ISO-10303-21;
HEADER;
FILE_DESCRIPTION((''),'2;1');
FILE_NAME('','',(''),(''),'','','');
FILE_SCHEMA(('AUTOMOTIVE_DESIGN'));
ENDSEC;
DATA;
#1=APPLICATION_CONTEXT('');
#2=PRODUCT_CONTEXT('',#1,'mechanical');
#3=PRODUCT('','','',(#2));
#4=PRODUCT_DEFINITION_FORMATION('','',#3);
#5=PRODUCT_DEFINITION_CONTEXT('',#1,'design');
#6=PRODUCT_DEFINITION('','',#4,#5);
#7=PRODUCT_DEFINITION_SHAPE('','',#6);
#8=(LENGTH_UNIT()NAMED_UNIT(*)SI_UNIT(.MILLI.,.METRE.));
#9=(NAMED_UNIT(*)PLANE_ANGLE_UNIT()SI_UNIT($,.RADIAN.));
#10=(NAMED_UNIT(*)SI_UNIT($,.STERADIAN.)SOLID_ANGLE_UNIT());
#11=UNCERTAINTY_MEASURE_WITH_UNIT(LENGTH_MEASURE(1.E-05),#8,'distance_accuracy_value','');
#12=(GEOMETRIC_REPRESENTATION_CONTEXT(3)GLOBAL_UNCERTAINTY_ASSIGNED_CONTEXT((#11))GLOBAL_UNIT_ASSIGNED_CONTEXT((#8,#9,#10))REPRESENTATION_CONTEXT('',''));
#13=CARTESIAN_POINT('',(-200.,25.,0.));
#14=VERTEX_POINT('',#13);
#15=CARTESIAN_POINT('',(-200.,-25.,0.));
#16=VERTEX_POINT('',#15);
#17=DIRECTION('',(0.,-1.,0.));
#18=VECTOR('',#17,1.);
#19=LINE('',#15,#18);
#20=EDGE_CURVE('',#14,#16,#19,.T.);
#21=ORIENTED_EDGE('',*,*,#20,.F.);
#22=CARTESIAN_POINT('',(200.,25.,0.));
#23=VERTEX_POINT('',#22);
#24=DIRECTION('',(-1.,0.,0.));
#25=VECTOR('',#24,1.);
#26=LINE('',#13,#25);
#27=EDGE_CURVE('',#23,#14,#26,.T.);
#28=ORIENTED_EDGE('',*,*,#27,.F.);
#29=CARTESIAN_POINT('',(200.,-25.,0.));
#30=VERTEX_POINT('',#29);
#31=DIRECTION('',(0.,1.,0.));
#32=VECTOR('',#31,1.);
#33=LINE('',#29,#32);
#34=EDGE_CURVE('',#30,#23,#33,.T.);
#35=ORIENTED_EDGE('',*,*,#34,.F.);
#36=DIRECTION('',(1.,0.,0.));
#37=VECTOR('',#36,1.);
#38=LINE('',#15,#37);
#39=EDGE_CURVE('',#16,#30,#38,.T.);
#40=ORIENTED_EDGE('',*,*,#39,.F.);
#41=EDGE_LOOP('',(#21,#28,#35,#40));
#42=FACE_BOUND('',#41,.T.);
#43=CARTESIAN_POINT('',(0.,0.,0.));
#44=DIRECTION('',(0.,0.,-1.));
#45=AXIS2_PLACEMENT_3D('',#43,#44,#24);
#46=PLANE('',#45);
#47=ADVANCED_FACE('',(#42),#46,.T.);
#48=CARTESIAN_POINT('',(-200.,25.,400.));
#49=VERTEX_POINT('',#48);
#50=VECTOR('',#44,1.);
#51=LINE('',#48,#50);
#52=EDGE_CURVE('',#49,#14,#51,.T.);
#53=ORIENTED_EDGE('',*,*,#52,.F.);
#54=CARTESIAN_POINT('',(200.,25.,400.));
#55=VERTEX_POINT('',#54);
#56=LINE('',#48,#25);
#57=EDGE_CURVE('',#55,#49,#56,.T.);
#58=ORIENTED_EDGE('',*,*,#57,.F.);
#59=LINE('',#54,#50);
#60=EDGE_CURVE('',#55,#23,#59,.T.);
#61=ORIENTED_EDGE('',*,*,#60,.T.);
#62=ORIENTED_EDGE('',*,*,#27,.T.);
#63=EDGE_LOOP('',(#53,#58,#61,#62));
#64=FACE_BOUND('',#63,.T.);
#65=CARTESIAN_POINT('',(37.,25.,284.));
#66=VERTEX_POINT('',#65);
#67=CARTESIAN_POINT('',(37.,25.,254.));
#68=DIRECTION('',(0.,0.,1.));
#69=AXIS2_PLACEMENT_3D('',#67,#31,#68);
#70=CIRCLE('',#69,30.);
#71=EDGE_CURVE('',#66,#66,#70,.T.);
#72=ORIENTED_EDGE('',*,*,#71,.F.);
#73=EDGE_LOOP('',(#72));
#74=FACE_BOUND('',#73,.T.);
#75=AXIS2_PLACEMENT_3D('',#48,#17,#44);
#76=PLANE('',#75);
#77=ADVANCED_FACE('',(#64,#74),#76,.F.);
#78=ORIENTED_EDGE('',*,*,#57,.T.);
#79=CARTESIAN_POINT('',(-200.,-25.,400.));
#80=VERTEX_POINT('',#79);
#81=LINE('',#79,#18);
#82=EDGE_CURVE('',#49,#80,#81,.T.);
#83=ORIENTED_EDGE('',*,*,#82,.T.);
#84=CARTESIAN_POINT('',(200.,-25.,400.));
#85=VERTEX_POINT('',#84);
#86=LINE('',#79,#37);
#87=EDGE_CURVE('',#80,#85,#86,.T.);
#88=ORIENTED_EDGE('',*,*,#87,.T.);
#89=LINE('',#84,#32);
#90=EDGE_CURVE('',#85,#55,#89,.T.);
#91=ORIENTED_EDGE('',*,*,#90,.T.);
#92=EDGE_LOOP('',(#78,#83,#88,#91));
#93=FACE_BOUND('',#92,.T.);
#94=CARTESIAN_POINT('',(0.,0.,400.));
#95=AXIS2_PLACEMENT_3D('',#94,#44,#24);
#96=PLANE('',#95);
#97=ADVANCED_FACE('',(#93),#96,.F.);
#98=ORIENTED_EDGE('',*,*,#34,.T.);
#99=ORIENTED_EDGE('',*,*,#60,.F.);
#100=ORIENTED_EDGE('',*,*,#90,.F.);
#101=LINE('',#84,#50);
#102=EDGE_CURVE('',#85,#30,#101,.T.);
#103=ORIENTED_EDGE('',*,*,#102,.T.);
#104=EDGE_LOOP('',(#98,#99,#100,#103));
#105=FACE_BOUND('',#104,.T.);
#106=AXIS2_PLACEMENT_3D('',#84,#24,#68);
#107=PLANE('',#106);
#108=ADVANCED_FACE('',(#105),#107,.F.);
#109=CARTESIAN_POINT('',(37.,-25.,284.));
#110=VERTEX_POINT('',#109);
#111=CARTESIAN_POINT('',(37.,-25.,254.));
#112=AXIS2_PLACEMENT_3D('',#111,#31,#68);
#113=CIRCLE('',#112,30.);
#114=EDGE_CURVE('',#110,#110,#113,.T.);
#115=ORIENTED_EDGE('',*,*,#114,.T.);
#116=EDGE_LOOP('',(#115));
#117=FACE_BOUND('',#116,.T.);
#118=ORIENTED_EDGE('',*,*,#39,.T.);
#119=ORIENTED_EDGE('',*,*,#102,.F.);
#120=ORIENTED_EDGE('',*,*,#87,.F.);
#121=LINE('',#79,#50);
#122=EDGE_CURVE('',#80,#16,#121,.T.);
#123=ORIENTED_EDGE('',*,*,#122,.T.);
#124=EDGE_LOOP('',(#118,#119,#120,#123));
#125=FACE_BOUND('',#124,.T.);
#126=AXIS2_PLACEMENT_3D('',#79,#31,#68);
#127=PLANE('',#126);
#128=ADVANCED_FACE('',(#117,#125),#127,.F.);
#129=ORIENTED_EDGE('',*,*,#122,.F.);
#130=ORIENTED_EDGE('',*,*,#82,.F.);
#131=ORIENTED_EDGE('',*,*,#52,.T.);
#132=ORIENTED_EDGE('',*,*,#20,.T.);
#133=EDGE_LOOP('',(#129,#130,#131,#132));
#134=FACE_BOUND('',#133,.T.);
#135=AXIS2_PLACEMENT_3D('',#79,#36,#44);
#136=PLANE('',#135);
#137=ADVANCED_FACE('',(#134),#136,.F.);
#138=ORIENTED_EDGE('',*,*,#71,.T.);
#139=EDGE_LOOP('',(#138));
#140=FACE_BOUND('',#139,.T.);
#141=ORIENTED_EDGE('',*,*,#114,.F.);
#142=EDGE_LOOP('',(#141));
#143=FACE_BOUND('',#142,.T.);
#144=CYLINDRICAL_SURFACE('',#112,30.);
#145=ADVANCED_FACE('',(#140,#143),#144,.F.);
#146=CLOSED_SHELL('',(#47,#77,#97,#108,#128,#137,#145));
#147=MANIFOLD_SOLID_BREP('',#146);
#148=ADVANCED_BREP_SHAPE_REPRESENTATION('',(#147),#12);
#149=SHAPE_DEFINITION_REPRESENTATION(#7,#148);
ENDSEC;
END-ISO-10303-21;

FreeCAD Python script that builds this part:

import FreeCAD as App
import Part
import Sketcher

V = App.Vector


def add_polygon(sketch, points):
    """Adds a closed chain of lines whose ends are joined by coincident constraints."""
    first, n = sketch.GeometryCount, len(points)
    for a, b in zip(points, points[1:] + points[:1]):
        sketch.addGeometry(Part.LineSegment(App.Vector(*a, 0), App.Vector(*b, 0)), False)
    for i in range(n):
        sketch.addConstraint(Sketcher.Constraint("Coincident", first + i, 2, first + (i + 1) % n, 1))

doc = App.newDocument("Part")
body = doc.addObject("PartDesign::Body", "Body")

# Sketch on XY plane
sketch1 = body.newObject("Sketcher::SketchObject", "Sketch")
sketch1.AttachmentSupport = (doc.getObject("XY_Plane"), [""])
sketch1.MapMode = "FlatFace"
add_polygon(sketch1, [(-200, 25), (-200, -25), (200, -25), (200, 25)])  # lines 0-3
sketch1.addConstraint(Sketcher.Constraint("Vertical", 0))
sketch1.addConstraint(Sketcher.Constraint("Horizontal", 1))
sketch1.addConstraint(Sketcher.Constraint("Vertical", 2))
sketch1.addConstraint(Sketcher.Constraint("Horizontal", 3))
sketch1.addConstraint(Sketcher.Constraint("Symmetric", 0, 2, 2, 2, -1, 1))
sketch1.addConstraint(Sketcher.Constraint("DistanceX", 1, 1, 1, 2, 400.0))
sketch1.addConstraint(Sketcher.Constraint("DistanceY", 0, 2, 0, 1, 50.0))
pad1 = body.newObject("PartDesign::Pad", "Pad")
pad1.Profile = sketch1
pad1.Length = 400

# Sketch on XZ plane
sketch2 = body.newObject("Sketcher::SketchObject", "Sketch001")
sketch2.AttachmentSupport = (doc.getObject("XZ_Plane"), [""])
sketch2.MapMode = "FlatFace"
sketch2.AttachmentOffset = App.Placement(V(0, 0, -25), App.Rotation())
sketch2.addGeometry(Part.Circle(V(37, 254, 0), V(0, 0, 1), 30), False)
sketch2.addConstraint(Sketcher.Constraint("Diameter", 0, 60.0))
sketch2.addConstraint(Sketcher.Constraint("DistanceX", -1, 1, 0, 3, 37.0))
sketch2.addConstraint(Sketcher.Constraint("DistanceY", -1, 1, 0, 3, 254.0))
pocket1 = body.newObject("PartDesign::Pocket", "Pocket")
pocket1.Profile = sketch2
pocket1.Type = "ThroughAll"
pocket1.Reversed = True

doc.recompute()
